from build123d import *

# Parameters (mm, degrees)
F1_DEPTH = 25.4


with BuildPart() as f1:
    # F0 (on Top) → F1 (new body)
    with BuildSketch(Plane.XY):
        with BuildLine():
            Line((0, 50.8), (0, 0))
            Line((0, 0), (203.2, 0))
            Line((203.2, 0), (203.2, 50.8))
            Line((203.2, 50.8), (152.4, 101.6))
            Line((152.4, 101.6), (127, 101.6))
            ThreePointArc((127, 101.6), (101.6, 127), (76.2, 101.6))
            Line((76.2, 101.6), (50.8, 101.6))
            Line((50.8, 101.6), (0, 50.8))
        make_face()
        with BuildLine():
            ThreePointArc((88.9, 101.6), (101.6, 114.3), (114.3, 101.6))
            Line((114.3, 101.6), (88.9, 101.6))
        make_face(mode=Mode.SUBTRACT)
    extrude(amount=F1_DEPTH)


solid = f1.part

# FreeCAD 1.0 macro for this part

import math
import FreeCAD as App
import Part
import Sketcher
from FreeCAD import Vector
Q = App.Units.Quantity

doc = App.newDocument("Part")
body = doc.addObject("PartDesign::Body", "Body")

# Sketch on XY plane
sketch1 = body.newObject("Sketcher::SketchObject", "Sketch")
sketch1.AttachmentSupport = (doc.getObject("XY_Plane"), [""])
sketch1.MapMode = "FlatFace"
sketch1.addGeometry([
    Part.LineSegment(Vector(0, 50.8, 0), Vector(0, 0, 0)),  # 0
    Part.LineSegment(Vector(0, 0, 0), Vector(203.2, 0, 0)),  # 1
    Part.LineSegment(Vector(203.2, 0, 0), Vector(203.2, 50.8, 0)),  # 2
    Part.LineSegment(Vector(203.2, 50.8, 0), Vector(152.4, 101.6, 0)),  # 3
    Part.LineSegment(Vector(152.4, 101.6, 0), Vector(127, 101.6, 0)),  # 4
    Part.ArcOfCircle(Part.Circle(Vector(101.6, 101.6, 0), Vector(0, 0, 1), 25.4), math.radians(0), math.radians(180)),  # 5
    Part.LineSegment(Vector(76.2, 101.6, 0), Vector(50.8, 101.6, 0)),  # 6
    Part.LineSegment(Vector(50.8, 101.6, 0), Vector(0, 50.8, 0)),  # 7
    Part.LineSegment(Vector(114.3, 101.6, 0), Vector(88.9, 101.6, 0)),  # 8
    Part.ArcOfCircle(Part.Circle(Vector(101.6, 101.6, 0), Vector(0, 0, 1), 12.7), math.radians(0), math.radians(180)),  # 9
], False)
sketch1.addConstraint([
    Sketcher.Constraint("Coincident", 0, 2, 1, 1),
    Sketcher.Constraint("Coincident", 1, 2, 2, 1),
    Sketcher.Constraint("Coincident", 2, 2, 3, 1),
    Sketcher.Constraint("Coincident", 3, 2, 4, 1),
    Sketcher.Constraint("Coincident", 4, 2, 5, 1),
    Sketcher.Constraint("Coincident", 5, 2, 6, 1),
    Sketcher.Constraint("Coincident", 6, 2, 7, 1),
    Sketcher.Constraint("Coincident", 7, 2, 0, 1),
    Sketcher.Constraint("Coincident", 8, 1, 9, 1),
    Sketcher.Constraint("Coincident", 9, 2, 8, 2),
    Sketcher.Constraint("Vertical", 0),
    Sketcher.Constraint("Horizontal", 1),
    Sketcher.Constraint("Vertical", 2),
    Sketcher.Constraint("Horizontal", 4),
    Sketcher.Constraint("Horizontal", 6),
    Sketcher.Constraint("Horizontal", 8),
    Sketcher.Constraint("Coincident", 0, 2, -1, 1),
    Sketcher.Constraint("Coincident", 9, 3, 5, 3),
    Sketcher.Constraint("Perpendicular", 3, 7),
    Sketcher.Constraint("Horizontal", 9, 3, 3, 2),
    Sketcher.Constraint("Horizontal", 4, 2, 5, 2),
    Sketcher.Constraint("Horizontal", 2, 2, 7, 2),
    Sketcher.Constraint("Horizontal", 6, 2, 8, 1),
    Sketcher.Constraint("Equal", 4, 6),
    Sketcher.Constraint("Equal", 6, 8),
    Sketcher.Constraint("Equal", 3, 7),
    Sketcher.Constraint("Radius", 5, Q("1 in")),
    Sketcher.Constraint("Radius", 9, Q("0.5 in")),
    Sketcher.Constraint("DistanceX", 1, 1, 1, 2, Q("8 in")),
    Sketcher.Constraint("DistanceY", 0, 2, 0, 1, Q("2 in")),
])
pad1 = body.newObject("PartDesign::Pad", "Pad")
pad1.Profile = sketch1
pad1.Length = Q("1 in")

doc.recompute()
